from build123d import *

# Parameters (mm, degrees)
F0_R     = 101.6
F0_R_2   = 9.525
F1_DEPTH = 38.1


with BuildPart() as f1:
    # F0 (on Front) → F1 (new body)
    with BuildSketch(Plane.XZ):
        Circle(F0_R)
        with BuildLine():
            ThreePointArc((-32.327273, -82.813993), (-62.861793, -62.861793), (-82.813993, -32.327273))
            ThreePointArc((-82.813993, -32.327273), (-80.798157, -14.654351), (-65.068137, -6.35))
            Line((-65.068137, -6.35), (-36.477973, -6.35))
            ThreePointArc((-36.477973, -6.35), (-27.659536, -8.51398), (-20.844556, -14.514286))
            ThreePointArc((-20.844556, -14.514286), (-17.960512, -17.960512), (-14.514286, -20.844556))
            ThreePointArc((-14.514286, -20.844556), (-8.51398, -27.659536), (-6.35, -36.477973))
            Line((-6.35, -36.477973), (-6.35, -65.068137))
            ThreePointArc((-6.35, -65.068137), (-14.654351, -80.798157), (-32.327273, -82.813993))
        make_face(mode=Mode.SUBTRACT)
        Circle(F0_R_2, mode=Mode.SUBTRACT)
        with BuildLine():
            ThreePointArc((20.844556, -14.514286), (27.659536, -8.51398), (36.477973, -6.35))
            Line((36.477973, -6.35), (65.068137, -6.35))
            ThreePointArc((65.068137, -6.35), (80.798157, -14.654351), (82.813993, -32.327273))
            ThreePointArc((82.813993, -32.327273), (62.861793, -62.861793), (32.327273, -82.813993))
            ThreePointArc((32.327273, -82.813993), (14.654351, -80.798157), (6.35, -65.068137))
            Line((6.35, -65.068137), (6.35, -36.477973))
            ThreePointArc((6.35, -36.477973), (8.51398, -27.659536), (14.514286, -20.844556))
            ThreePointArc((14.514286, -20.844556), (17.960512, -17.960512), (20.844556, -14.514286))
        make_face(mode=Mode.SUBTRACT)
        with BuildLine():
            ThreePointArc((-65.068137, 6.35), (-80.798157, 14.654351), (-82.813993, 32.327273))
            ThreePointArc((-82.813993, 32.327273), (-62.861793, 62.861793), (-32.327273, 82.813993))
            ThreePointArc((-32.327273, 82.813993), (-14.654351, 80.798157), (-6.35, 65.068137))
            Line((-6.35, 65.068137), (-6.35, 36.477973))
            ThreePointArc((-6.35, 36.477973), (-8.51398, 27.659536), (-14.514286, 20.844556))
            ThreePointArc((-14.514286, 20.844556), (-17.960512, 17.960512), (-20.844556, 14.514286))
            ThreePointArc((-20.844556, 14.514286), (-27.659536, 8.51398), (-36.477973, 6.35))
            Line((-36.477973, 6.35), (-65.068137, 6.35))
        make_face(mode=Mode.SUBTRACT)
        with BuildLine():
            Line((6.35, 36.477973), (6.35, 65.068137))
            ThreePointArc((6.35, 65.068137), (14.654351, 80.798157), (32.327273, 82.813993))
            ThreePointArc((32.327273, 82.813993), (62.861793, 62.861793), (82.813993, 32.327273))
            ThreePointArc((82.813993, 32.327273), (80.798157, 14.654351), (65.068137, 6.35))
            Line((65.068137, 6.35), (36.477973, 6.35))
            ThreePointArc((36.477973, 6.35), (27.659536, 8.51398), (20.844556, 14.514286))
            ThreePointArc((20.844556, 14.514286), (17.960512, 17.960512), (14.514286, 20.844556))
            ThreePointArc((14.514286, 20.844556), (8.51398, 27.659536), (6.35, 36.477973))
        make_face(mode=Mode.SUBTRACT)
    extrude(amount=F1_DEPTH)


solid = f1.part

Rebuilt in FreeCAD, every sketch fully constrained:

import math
import FreeCAD as App
import Part
import Sketcher
Q = App.Units.Quantity

doc = App.newDocument("Part")
body = doc.addObject("PartDesign::Body", "Body")

# Sketch on XZ plane
sketch1 = body.newObject("Sketcher::SketchObject", "Sketch")
sketch1.AttachmentSupport = (doc.getObject("XZ_Plane"), [""])
sketch1.MapMode = "FlatFace"
sketch1.addGeometry(Part.Circle(App.Vector(0, 0, 0), App.Vector(0, 0, 1), 102), False)
sketch1.addGeometry(Part.ArcOfCircle(Part.Circle(App.Vector(-25, -65, 0), App.Vector(0, 0, 1), 19), math.radians(-111), math.radians(0)), False)
sketch1.addGeometry(Part.ArcOfCircle(Part.Circle(App.Vector(0, 0, 0), App.Vector(0, 0, 1), 89), math.radians(-159), math.radians(-111)), False)
sketch1.addGeometry(Part.ArcOfCircle(Part.Circle(App.Vector(-65, -25, 0), App.Vector(0, 0, 1), 19), math.radians(90), math.radians(201)), False)
sketch1.addGeometry(Part.LineSegment(App.Vector(-65, -6, 0), App.Vector(-36, -6, 0)), False)
sketch1.addGeometry(Part.ArcOfCircle(Part.Circle(App.Vector(-36, -25, 0), App.Vector(0, 0, 1), 19), math.radians(35), math.radians(90)), False)
sketch1.addGeometry(Part.ArcOfCircle(Part.Circle(App.Vector(0, 0, 0), App.Vector(0, 0, 1), 25), math.radians(-145), math.radians(-125)), False)
sketch1.addGeometry(Part.ArcOfCircle(Part.Circle(App.Vector(-25, -36, 0), App.Vector(0, 0, 1), 19), math.radians(0), math.radians(55)), False)
sketch1.addGeometry(Part.LineSegment(App.Vector(-6, -36, 0), App.Vector(-6, -65, 0)), False)
sketch1.addGeometry(Part.ArcOfCircle(Part.Circle(App.Vector(0, 0, 0), App.Vector(0, 0, 1), 25), math.radians(-55), math.radians(-35)), False)
sketch1.addGeometry(Part.ArcOfCircle(Part.Circle(App.Vector(36, -25, 0), App.Vector(0, 0, 1), 19), math.radians(90), math.radians(145)), False)
sketch1.addGeometry(Part.LineSegment(App.Vector(36, -6, 0), App.Vector(65, -6, 0)), False)
sketch1.addGeometry(Part.ArcOfCircle(Part.Circle(App.Vector(65, -25, 0), App.Vector(0, 0, 1), 19), math.radians(-21), math.radians(90)), False)
sketch1.addGeometry(Part.ArcOfCircle(Part.Circle(App.Vector(0, 0, 0), App.Vector(0, 0, 1), 89), math.radians(-69), math.radians(-21)), False)
sketch1.addGeometry(Part.ArcOfCircle(Part.Circle(App.Vector(25, -65, 0), App.Vector(0, 0, 1), 19), math.radians(-180), math.radians(-69)), False)
sketch1.addGeometry(Part.LineSegment(App.Vector(6, -65, 0), App.Vector(6, -36, 0)), False)
sketch1.addGeometry(Part.ArcOfCircle(Part.Circle(App.Vector(25, -36, 0), App.Vector(0, 0, 1), 19), math.radians(125), math.radians(180)), False)
sketch1.addGeometry(Part.LineSegment(App.Vector(-36, 6, 0), App.Vector(-65, 6, 0)), False)
sketch1.addGeometry(Part.ArcOfCircle(Part.Circle(App.Vector(-65, 25, 0), App.Vector(0, 0, 1), 19), math.radians(159), math.radians(270)), False)
sketch1.addGeometry(Part.ArcOfCircle(Part.Circle(App.Vector(0, 0, 0), App.Vector(0, 0, 1), 89), math.radians(111), math.radians(159)), False)
sketch1.addGeometry(Part.ArcOfCircle(Part.Circle(App.Vector(-25, 65, 0), App.Vector(0, 0, 1), 19), math.radians(0), math.radians(111)), False)
sketch1.addGeometry(Part.LineSegment(App.Vector(-6, 65, 0), App.Vector(-6, 36, 0)), False)
sketch1.addGeometry(Part.ArcOfCircle(Part.Circle(App.Vector(-25, 36, 0), App.Vector(0, 0, 1), 19), math.radians(-55), math.radians(0)), False)
sketch1.addGeometry(Part.ArcOfCircle(Part.Circle(App.Vector(0, 0, 0), App.Vector(0, 0, 1), 25), math.radians(125), math.radians(145)), False)
sketch1.addGeometry(Part.ArcOfCircle(Part.Circle(App.Vector(-36, 25, 0), App.Vector(0, 0, 1), 19), math.radians(-90), math.radians(-35)), False)
sketch1.addGeometry(Part.Circle(App.Vector(0, 0, 0), App.Vector(0, 0, 1), 10), False)
sketch1.addGeometry(Part.ArcOfCircle(Part.Circle(App.Vector(25, 36, 0), App.Vector(0, 0, 1), 19), math.radians(180), math.radians(235)), False)
sketch1.addGeometry(Part.LineSegment(App.Vector(6, 36, 0), App.Vector(6, 65, 0)), False)
sketch1.addGeometry(Part.ArcOfCircle(Part.Circle(App.Vector(25, 65, 0), App.Vector(0, 0, 1), 19), math.radians(69), math.radians(180)), False)
sketch1.addGeometry(Part.ArcOfCircle(Part.Circle(App.Vector(0, 0, 0), App.Vector(0, 0, 1), 89), math.radians(21), math.radians(69)), False)
sketch1.addGeometry(Part.ArcOfCircle(Part.Circle(App.Vector(65, 25, 0), App.Vector(0, 0, 1), 19), math.radians(-90), math.radians(21)), False)
sketch1.addGeometry(Part.LineSegment(App.Vector(65, 6, 0), App.Vector(36, 6, 0)), False)
sketch1.addGeometry(Part.ArcOfCircle(Part.Circle(App.Vector(36, 25, 0), App.Vector(0, 0, 1), 19), math.radians(-145), math.radians(-90)), False)
sketch1.addGeometry(Part.ArcOfCircle(Part.Circle(App.Vector(0, 0, 0), App.Vector(0, 0, 1), 25), math.radians(35), math.radians(55)), False)
sketch1.addConstraint(Sketcher.Constraint("Tangent", 1, 1, 2, 2))
sketch1.addConstraint(Sketcher.Constraint("Tangent", 2, 1, 3, 2))
sketch1.addConstraint(Sketcher.Constraint("Tangent", 3, 1, 4, 1))
sketch1.addConstraint(Sketcher.Constraint("Tangent", 4, 2, 5, 2))
sketch1.addConstraint(Sketcher.Constraint("Tangent", 5, 1, 6, 1))
sketch1.addConstraint(Sketcher.Constraint("Tangent", 6, 2, 7, 2))
sketch1.addConstraint(Sketcher.Constraint("Tangent", 7, 1, 8, 1))
sketch1.addConstraint(Sketcher.Constraint("Tangent", 8, 2, 1, 2))
sketch1.addConstraint(Sketcher.Constraint("Tangent", 9, 2, 10, 2))
sketch1.addConstraint(Sketcher.Constraint("Tangent", 10, 1, 11, 1))
sketch1.addConstraint(Sketcher.Constraint("Tangent", 11, 2, 12, 2))
sketch1.addConstraint(Sketcher.Constraint("Tangent", 12, 1, 13, 2))
sketch1.addConstraint(Sketcher.Constraint("Tangent", 13, 1, 14, 2))
sketch1.addConstraint(Sketcher.Constraint("Tangent", 14, 1, 15, 1))
sketch1.addConstraint(Sketcher.Constraint("Tangent", 15, 2, 16, 2))
sketch1.addConstraint(Sketcher.Constraint("Tangent", 16, 1, 9, 1))
sketch1.addConstraint(Sketcher.Constraint("Tangent", 17, 2, 18, 2))
sketch1.addConstraint(Sketcher.Constraint("Tangent", 18, 1, 19, 2))
sketch1.addConstraint(Sketcher.Constraint("Tangent", 19, 1, 20, 2))
sketch1.addConstraint(Sketcher.Constraint("Tangent", 20, 1, 21, 1))
sketch1.addConstraint(Sketcher.Constraint("Tangent", 21, 2, 22, 2))
sketch1.addConstraint(Sketcher.Constraint("Tangent", 22, 1, 23, 1))
sketch1.addConstraint(Sketcher.Constraint("Tangent", 23, 2, 24, 2))
sketch1.addConstraint(Sketcher.Constraint("Tangent", 24, 1, 17, 1))
sketch1.addConstraint(Sketcher.Constraint("Tangent", 26, 1, 27, 1))
sketch1.addConstraint(Sketcher.Constraint("Tangent", 27, 2, 28, 2))
sketch1.addConstraint(Sketcher.Constraint("Tangent", 28, 1, 29, 2))
sketch1.addConstraint(Sketcher.Constraint("Tangent", 29, 1, 30, 2))
sketch1.addConstraint(Sketcher.Constraint("Tangent", 30, 1, 31, 1))
sketch1.addConstraint(Sketcher.Constraint("Tangent", 31, 2, 32, 2))
sketch1.addConstraint(Sketcher.Constraint("Tangent", 32, 1, 33, 1))
sketch1.addConstraint(Sketcher.Constraint("Tangent", 33, 2, 26, 2))
sketch1.addConstraint(Sketcher.Constraint("Horizontal", 4))
sketch1.addConstraint(Sketcher.Constraint("Vertical", 8))
sketch1.addConstraint(Sketcher.Constraint("Horizontal", 11))
sketch1.addConstraint(Sketcher.Constraint("Vertical", 15))
sketch1.addConstraint(Sketcher.Constraint("Horizontal", 17))
sketch1.addConstraint(Sketcher.Constraint("Vertical", 21))
sketch1.addConstraint(Sketcher.Constraint("Vertical", 27))
sketch1.addConstraint(Sketcher.Constraint("Horizontal", 31))
sketch1.addConstraint(Sketcher.Constraint("Coincident", 0, 3, -1, 1))
sketch1.addConstraint(Sketcher.Constraint("Coincident", 2, 3, -1, 1))
sketch1.addConstraint(Sketcher.Constraint("Coincident", 13, 3, -1, 1))
sketch1.addConstraint(Sketcher.Constraint("Coincident", 19, 3, -1, 1))
sketch1.addConstraint(Sketcher.Constraint("Coincident", 25, 3, -1, 1))
sketch1.addConstraint(Sketcher.Constraint("Coincident", 29, 3, -1, 1))
sketch1.addConstraint(Sketcher.Constraint("Equal", 1, 3))
sketch1.addConstraint(Sketcher.Constraint("Equal", 3, 5))
sketch1.addConstraint(Sketcher.Constraint("Equal", 5, 7))
sketch1.addConstraint(Sketcher.Constraint("Equal", 6, 9))
sketch1.addConstraint(Sketcher.Constraint("Equal", 7, 10))
sketch1.addConstraint(Sketcher.Constraint("Equal", 10, 12))
sketch1.addConstraint(Sketcher.Constraint("Equal", 2, 13))
sketch1.addConstraint(Sketcher.Constraint("Equal", 12, 14))
sketch1.addConstraint(Sketcher.Constraint("Equal", 14, 16))
sketch1.addConstraint(Sketcher.Constraint("Equal", 16, 18))
sketch1.addConstraint(Sketcher.Constraint("Equal", 13, 19))
sketch1.addConstraint(Sketcher.Constraint("Equal", 18, 20))
sketch1.addConstraint(Sketcher.Constraint("Equal", 20, 22))
sketch1.addConstraint(Sketcher.Constraint("Equal", 9, 23))
sketch1.addConstraint(Sketcher.Constraint("Equal", 22, 24))
sketch1.addConstraint(Sketcher.Constraint("Equal", 24, 26))
sketch1.addConstraint(Sketcher.Constraint("Equal", 26, 28))
sketch1.addConstraint(Sketcher.Constraint("Equal", 19, 29))
sketch1.addConstraint(Sketcher.Constraint("Equal", 28, 30))
sketch1.addConstraint(Sketcher.Constraint("Equal", 30, 32))
sketch1.addConstraint(Sketcher.Constraint("Equal", 23, 33))
sketch1.addConstraint(Sketcher.Constraint("Symmetric", 16, 3, 22, 3, -1, 1))
sketch1.addConstraint(Sketcher.Constraint("Symmetric", 10, 3, 24, 3, -1, 1))
sketch1.addConstraint(Sketcher.Constraint("Symmetric", 7, 3, 26, 3, -1, 1))
sketch1.addConstraint(Sketcher.Constraint("Symmetric", 5, 3, 32, 3, -1, 1))
sketch1.addConstraint(Sketcher.Constraint("Symmetric", 6, 3, 9, 3, -2))
sketch1.addConstraint(Sketcher.Constraint("Horizontal", 5, 3, 10, 3))
sketch1.addConstraint(Sketcher.Constraint("Horizontal", 1, 3, 14, 3))
sketch1.addConstraint(Sketcher.Constraint("Equal", 31, 8))
sketch1.addConstraint(Sketcher.Constraint("Diameter", 0, Q("8 in")))
sketch1.addConstraint(Sketcher.Constraint("Radius", 2, Q("3.5 in")))
sketch1.addConstraint(Sketcher.Constraint("Diameter", 25, Q("0.75 in")))
sketch1.addConstraint(Sketcher.Constraint("Radius", 1, Q("0.75 in")))
sketch1.addConstraint(Sketcher.Constraint("DistanceX", 1, 3, -1, 1, Q("1 in")))
sketch1.addConstraint(Sketcher.Constraint("DistanceY", 3, 3, -1, 1, Q("1 in")))
sketch1.addConstraint(Sketcher.Constraint("Radius", 6, 25.400038))
sketch1.addConstraint(Sketcher.Constraint("DistanceX", 5, 3, 6, 3, 36.478))
pad1 = body.newObject("PartDesign::Pad", "Pad")
pad1.Profile = sketch1
pad1.Length = Q("1.5 in")

doc.recompute()
